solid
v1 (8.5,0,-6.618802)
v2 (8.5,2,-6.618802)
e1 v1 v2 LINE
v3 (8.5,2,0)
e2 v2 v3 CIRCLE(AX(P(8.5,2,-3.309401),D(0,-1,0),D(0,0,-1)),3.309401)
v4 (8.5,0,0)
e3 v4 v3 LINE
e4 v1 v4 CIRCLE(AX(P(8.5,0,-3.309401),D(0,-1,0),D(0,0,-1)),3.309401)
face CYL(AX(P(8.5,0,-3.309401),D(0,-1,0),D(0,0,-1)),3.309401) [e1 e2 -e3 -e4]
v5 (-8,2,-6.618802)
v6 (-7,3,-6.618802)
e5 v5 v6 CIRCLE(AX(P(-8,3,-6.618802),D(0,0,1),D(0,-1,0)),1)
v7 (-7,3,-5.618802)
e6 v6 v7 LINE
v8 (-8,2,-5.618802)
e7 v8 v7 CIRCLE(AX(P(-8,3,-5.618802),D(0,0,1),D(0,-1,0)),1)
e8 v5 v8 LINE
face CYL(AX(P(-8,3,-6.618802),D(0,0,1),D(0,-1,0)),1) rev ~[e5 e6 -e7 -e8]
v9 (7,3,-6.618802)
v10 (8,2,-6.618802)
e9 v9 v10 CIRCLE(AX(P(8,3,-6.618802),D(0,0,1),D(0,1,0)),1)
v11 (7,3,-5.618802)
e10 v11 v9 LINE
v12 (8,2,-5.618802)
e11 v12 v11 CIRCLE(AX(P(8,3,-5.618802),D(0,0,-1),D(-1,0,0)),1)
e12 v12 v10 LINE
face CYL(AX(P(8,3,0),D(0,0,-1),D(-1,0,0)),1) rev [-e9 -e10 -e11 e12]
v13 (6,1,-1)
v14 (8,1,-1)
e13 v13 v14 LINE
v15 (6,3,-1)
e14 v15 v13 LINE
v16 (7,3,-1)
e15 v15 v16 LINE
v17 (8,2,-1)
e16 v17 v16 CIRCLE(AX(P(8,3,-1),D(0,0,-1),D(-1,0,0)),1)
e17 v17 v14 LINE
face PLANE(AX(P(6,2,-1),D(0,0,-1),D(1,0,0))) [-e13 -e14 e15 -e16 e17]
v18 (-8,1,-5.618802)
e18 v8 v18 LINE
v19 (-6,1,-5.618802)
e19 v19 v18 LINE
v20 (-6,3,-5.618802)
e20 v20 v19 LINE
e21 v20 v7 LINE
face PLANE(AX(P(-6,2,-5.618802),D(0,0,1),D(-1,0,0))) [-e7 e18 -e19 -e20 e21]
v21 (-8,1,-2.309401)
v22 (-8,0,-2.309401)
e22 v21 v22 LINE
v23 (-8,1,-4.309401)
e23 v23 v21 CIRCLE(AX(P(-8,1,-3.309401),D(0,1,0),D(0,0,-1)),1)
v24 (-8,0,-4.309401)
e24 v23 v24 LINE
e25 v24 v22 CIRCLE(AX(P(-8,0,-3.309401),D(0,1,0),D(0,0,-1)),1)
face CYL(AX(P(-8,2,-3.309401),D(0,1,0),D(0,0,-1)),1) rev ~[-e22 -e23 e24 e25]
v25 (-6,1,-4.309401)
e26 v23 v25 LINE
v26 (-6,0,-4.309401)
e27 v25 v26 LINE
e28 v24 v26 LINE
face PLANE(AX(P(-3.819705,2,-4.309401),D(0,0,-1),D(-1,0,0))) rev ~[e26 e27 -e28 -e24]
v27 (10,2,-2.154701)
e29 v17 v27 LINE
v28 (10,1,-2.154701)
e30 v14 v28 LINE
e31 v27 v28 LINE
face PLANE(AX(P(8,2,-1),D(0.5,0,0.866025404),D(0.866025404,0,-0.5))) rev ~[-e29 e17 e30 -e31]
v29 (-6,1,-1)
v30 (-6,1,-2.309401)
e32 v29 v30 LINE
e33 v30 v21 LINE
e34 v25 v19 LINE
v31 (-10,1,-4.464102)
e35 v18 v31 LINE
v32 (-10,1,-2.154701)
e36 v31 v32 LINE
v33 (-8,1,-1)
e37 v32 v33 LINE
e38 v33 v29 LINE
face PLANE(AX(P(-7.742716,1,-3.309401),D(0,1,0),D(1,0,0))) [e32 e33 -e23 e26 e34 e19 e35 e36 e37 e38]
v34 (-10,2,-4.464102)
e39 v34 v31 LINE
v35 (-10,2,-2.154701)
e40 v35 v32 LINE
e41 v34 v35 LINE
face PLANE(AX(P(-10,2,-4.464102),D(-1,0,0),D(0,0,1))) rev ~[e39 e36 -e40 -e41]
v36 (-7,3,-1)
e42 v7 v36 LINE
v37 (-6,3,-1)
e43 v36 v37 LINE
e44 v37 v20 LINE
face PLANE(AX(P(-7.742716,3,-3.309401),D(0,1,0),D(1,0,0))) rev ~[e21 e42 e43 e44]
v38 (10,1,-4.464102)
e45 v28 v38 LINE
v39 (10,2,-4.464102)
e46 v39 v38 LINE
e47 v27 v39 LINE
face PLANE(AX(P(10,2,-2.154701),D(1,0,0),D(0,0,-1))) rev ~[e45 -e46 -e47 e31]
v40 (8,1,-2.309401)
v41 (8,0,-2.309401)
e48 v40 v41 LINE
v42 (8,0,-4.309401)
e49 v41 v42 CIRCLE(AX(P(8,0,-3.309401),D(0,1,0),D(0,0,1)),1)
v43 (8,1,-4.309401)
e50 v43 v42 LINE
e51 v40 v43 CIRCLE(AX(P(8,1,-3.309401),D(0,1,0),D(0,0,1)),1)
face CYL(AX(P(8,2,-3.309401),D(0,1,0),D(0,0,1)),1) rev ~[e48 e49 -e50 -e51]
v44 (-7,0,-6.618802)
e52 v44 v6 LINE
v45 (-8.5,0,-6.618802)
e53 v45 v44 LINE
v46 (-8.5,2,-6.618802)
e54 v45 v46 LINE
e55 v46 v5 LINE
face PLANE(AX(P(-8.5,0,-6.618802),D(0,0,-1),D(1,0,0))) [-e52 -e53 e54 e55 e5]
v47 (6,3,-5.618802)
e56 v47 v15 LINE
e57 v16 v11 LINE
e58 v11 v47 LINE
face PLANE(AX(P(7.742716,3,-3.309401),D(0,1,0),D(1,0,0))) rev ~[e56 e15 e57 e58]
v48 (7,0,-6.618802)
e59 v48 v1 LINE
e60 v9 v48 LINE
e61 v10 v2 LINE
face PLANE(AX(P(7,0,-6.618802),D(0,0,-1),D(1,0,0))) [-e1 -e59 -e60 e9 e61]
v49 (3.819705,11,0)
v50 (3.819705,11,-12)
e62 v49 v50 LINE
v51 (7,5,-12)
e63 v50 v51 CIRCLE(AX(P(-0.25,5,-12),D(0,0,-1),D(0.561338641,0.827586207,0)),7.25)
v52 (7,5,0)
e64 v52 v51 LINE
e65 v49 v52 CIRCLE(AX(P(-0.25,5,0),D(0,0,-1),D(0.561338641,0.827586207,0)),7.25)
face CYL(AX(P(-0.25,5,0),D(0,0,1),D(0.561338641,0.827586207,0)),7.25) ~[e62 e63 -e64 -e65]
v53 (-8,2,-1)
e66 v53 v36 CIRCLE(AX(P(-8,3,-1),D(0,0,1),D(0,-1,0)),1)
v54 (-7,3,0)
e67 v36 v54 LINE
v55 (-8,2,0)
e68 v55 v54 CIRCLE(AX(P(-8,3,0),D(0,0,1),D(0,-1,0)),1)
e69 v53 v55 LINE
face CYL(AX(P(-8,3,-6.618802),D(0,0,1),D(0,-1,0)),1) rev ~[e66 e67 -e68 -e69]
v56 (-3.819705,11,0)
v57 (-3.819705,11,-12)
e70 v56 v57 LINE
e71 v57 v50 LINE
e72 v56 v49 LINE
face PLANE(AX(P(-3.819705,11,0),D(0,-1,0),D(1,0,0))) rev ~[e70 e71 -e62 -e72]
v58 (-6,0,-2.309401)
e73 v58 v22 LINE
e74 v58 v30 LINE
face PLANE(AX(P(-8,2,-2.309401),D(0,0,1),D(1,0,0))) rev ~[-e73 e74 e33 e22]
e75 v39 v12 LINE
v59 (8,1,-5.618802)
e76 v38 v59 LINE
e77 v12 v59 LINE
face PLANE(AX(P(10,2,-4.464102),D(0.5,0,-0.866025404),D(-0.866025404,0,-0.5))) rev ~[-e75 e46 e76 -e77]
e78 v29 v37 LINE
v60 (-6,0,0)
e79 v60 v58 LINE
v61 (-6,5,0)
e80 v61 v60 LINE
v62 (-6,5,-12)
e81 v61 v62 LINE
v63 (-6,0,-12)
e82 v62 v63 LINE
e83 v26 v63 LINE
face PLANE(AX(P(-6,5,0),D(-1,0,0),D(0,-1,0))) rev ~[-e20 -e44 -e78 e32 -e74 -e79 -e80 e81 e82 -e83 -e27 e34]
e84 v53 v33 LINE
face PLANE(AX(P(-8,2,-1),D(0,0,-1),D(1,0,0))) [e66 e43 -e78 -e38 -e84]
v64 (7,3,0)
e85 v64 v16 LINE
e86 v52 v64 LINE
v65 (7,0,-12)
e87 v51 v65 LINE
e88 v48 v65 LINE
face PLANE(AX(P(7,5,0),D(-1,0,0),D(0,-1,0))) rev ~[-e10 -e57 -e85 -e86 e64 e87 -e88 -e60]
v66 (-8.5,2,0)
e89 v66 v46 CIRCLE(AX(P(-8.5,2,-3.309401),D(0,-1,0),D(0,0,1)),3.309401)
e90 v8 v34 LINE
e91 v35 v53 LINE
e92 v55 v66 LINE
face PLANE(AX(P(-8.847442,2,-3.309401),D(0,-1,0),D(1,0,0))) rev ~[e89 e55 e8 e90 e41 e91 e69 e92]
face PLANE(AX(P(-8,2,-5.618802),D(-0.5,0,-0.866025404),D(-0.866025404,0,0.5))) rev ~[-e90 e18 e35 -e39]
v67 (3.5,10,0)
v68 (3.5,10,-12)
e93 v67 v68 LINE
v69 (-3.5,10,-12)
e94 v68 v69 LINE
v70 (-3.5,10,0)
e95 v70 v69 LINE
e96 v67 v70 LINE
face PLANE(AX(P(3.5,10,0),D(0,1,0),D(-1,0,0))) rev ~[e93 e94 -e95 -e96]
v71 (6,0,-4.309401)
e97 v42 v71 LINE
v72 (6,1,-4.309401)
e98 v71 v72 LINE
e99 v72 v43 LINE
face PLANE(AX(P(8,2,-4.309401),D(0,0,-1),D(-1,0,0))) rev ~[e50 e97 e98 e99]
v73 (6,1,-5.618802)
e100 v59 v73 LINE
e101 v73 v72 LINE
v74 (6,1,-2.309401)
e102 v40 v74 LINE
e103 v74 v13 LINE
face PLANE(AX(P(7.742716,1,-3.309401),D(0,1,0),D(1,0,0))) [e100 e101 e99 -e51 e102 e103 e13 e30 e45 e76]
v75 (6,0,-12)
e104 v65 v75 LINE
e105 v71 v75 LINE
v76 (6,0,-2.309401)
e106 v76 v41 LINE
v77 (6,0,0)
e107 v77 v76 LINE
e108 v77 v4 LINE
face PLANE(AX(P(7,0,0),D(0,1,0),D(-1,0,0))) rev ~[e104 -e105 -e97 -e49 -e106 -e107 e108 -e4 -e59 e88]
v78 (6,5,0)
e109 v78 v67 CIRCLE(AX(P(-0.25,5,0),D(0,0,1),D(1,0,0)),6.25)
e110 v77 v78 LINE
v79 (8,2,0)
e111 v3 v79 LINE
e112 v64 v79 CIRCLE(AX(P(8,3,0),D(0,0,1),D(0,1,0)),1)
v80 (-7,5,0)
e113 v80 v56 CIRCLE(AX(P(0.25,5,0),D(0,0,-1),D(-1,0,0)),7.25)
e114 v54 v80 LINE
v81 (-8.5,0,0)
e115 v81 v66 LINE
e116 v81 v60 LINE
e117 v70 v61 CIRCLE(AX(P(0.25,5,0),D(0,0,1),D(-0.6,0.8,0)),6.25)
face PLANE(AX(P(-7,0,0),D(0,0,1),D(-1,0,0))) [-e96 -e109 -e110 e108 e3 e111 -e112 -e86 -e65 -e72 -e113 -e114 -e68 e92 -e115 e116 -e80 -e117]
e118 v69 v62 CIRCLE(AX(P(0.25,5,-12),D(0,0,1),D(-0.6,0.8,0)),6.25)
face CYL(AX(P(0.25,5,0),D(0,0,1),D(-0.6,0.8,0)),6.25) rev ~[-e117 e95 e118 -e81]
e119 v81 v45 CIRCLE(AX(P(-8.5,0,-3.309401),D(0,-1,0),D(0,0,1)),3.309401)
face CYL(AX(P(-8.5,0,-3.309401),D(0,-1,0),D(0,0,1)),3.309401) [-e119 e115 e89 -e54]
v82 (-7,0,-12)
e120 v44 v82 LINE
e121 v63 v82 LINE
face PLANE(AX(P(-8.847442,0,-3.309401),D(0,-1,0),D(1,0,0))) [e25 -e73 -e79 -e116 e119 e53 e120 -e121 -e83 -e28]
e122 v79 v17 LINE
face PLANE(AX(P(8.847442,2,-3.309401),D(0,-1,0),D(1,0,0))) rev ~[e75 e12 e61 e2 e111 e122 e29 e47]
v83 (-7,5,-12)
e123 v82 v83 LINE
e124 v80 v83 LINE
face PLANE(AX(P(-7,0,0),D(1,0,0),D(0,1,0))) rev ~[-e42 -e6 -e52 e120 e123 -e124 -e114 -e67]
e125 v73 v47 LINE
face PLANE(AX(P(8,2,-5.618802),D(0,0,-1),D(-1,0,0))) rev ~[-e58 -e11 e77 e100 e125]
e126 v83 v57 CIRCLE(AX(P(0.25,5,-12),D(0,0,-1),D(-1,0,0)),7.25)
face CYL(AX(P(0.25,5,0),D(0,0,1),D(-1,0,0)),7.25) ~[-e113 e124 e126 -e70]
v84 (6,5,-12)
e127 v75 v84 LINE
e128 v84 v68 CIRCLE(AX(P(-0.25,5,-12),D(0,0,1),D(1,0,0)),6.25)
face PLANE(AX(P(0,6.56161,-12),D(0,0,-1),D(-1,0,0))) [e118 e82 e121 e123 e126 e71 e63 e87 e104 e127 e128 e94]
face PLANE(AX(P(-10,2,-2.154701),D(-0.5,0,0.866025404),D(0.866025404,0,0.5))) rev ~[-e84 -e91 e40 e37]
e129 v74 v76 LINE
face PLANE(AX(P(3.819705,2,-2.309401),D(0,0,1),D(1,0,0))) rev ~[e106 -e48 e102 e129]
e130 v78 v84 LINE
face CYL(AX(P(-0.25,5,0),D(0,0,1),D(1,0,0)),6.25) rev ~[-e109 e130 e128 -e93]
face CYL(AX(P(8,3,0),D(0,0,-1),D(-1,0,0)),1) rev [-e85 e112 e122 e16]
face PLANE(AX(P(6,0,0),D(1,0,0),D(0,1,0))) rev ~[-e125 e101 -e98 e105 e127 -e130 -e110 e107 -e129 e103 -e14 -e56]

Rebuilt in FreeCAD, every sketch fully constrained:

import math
import FreeCAD as App
import Part
import Sketcher

V = App.Vector
Q = App.Units.Quantity


def edges_at(feature, points):
    """Names of the edges that pass closest to the given points."""
    edges = feature.Shape.Edges
    near = lambda p: min(range(len(edges)), key=lambda i: edges[i].distToShape(Part.Vertex(*p))[0])
    return sorted({f"Edge{near(p) + 1}" for p in points})

doc = App.newDocument("Part")
body = doc.addObject("PartDesign::Body", "Body")

sketch1 = body.newObject("Sketcher::SketchObject", "Sketch")
sketch1.AttachmentSupport = (doc.getObject("XY_Plane"), [""])
sketch1.MapMode = "FlatFace"
sketch1.addGeometry(Part.LineSegment(V(-3.5, 10, 0), V(3.5, 10, 0)), False)
sketch1.addGeometry(Part.ArcOfCircle(Part.Circle(V(-0.2, 5, 0), V(0, 0, 1), 6.2), math.radians(0), math.radians(53)), False)
sketch1.addGeometry(Part.LineSegment(V(6, 5, 0), V(6, 0, 0)), False)
sketch1.addGeometry(Part.LineSegment(V(6, 0, 0), V(7, 0, 0)), False)
sketch1.addGeometry(Part.LineSegment(V(7, 0, 0), V(7, 5, 0)), False)
sketch1.addGeometry(Part.ArcOfCircle(Part.Circle(V(-0.3, 5, 0), V(0, 0, 1), 7.3), math.radians(0), math.radians(56)), False)
sketch1.addGeometry(Part.LineSegment(V(3.8, 11, 0), V(-3.8, 11, 0)), False)
sketch1.addGeometry(Part.ArcOfCircle(Part.Circle(V(0.3, 5, 0), V(0, 0, 1), 7.3), math.radians(124), math.radians(180)), False)
sketch1.addGeometry(Part.LineSegment(V(-7, 5, 0), V(-7, 0, 0)), False)
sketch1.addGeometry(Part.LineSegment(V(-7, 0, 0), V(-6, 0, 0)), False)
sketch1.addGeometry(Part.LineSegment(V(-6, 0, 0), V(-6, 5, 0)), False)
sketch1.addGeometry(Part.ArcOfCircle(Part.Circle(V(0.2, 5, 0), V(0, 0, 1), 6.2), math.radians(127), math.radians(180)), False)
sketch1.addConstraint(Sketcher.Constraint("Coincident", 0, 2, 1, 2))
sketch1.addConstraint(Sketcher.Constraint("Tangent", 1, 1, 2, 1))
sketch1.addConstraint(Sketcher.Constraint("Coincident", 2, 2, 3, 1))
sketch1.addConstraint(Sketcher.Constraint("Coincident", 3, 2, 4, 1))
sketch1.addConstraint(Sketcher.Constraint("Tangent", 4, 2, 5, 1))
sketch1.addConstraint(Sketcher.Constraint("Coincident", 5, 2, 6, 1))
sketch1.addConstraint(Sketcher.Constraint("Coincident", 6, 2, 7, 1))
sketch1.addConstraint(Sketcher.Constraint("Tangent", 7, 2, 8, 1))
sketch1.addConstraint(Sketcher.Constraint("Coincident", 8, 2, 9, 1))
sketch1.addConstraint(Sketcher.Constraint("Coincident", 9, 2, 10, 1))
sketch1.addConstraint(Sketcher.Constraint("Tangent", 10, 2, 11, 2))
sketch1.addConstraint(Sketcher.Constraint("Coincident", 11, 1, 0, 1))
sketch1.addConstraint(Sketcher.Constraint("Horizontal", 0))
sketch1.addConstraint(Sketcher.Constraint("Vertical", 2))
sketch1.addConstraint(Sketcher.Constraint("Horizontal", 3))
sketch1.addConstraint(Sketcher.Constraint("Vertical", 4))
sketch1.addConstraint(Sketcher.Constraint("Horizontal", 6))
sketch1.addConstraint(Sketcher.Constraint("Vertical", 8))
sketch1.addConstraint(Sketcher.Constraint("Horizontal", 9))
sketch1.addConstraint(Sketcher.Constraint("Vertical", 10))
sketch1.addConstraint(Sketcher.Constraint("Coincident", 5, 3, 1, 3))
sketch1.addConstraint(Sketcher.Constraint("Coincident", 11, 3, 7, 3))
sketch1.addConstraint(Sketcher.Constraint("Equal", 5, 7))
sketch1.addConstraint(Sketcher.Constraint("Equal", 1, 11))
sketch1.addConstraint(Sketcher.Constraint("Symmetric", 3, 2, 8, 2, -1, 1))
sketch1.addConstraint(Sketcher.Constraint("PointOnObject", 2, 2, -1))
sketch1.addConstraint(Sketcher.Constraint("Horizontal", 5, 3, 7, 3))
sketch1.addConstraint(Sketcher.Constraint("DistanceX", 0, 1, 0, 2, Q("7 mm")))
sketch1.addConstraint(Sketcher.Constraint("DistanceX", 3, 1, 3, 2, Q("1 mm")))
sketch1.addConstraint(Sketcher.Constraint("DistanceY", 2, 2, 2, 1, Q("5 mm")))
sketch1.addConstraint(Sketcher.Constraint("Radius", 1, Q("6.25 mm")))
sketch1.addConstraint(Sketcher.Constraint("DistanceY", -1, 1, 0, 2, Q("10 mm")))
sketch1.addConstraint(Sketcher.Constraint("DistanceY", -1, 1, 5, 2, Q("11 mm")))
pad1 = body.newObject("PartDesign::Pad", "Pad")
pad1.Profile = sketch1
pad1.Length = 12
pad1.Reversed = True

sketch2 = body.newObject("Sketcher::SketchObject", "Sketch001")
sketch2.AttachmentSupport = (doc.getObject("XZ_Plane"), [""])
sketch2.MapMode = "FlatFace"
sketch2.addGeometry(Part.LineSegment(V(-7, 0, 0), V(-8.5, 0, 0)), False)
sketch2.addGeometry(Part.ArcOfCircle(Part.Circle(V(-8.5, -3.3, 0), V(0, 0, 1), 3.3), math.radians(90), math.radians(270)), False)
sketch2.addGeometry(Part.LineSegment(V(-8.5, -6.6, 0), V(-7, -6.6, 0)), False)
sketch2.addGeometry(Part.LineSegment(V(-7, -6.6, 0), V(-7, 0, 0)), False)
sketch2.addGeometry(Part.ArcOfCircle(Part.Circle(V(8.5, -3.3, 0), V(0, 0, 1), 3.3), math.radians(-90), math.radians(90)), False)
sketch2.addGeometry(Part.LineSegment(V(8.5, 0, 0), V(7, 0, 0)), False)
sketch2.addGeometry(Part.LineSegment(V(7, 0, 0), V(7, -6.6, 0)), False)
sketch2.addGeometry(Part.LineSegment(V(7, -6.6, 0), V(8.5, -6.6, 0)), False)
sketch2.addConstraint(Sketcher.Constraint("Tangent", 0, 2, 1, 1))
sketch2.addConstraint(Sketcher.Constraint("Tangent", 1, 2, 2, 1))
sketch2.addConstraint(Sketcher.Constraint("Coincident", 2, 2, 3, 1))
sketch2.addConstraint(Sketcher.Constraint("Coincident", 3, 2, 0, 1))
sketch2.addConstraint(Sketcher.Constraint("Tangent", 4, 2, 5, 1))
sketch2.addConstraint(Sketcher.Constraint("Coincident", 5, 2, 6, 1))
sketch2.addConstraint(Sketcher.Constraint("Coincident", 6, 2, 7, 1))
sketch2.addConstraint(Sketcher.Constraint("Tangent", 7, 2, 4, 1))
sketch2.addConstraint(Sketcher.Constraint("Horizontal", 0))
sketch2.addConstraint(Sketcher.Constraint("Horizontal", 2))
sketch2.addConstraint(Sketcher.Constraint("Vertical", 3))
sketch2.addConstraint(Sketcher.Constraint("Horizontal", 5))
sketch2.addConstraint(Sketcher.Constraint("Vertical", 6))
sketch2.addConstraint(Sketcher.Constraint("Horizontal", 7))
sketch2.addConstraint(Sketcher.Constraint("Equal", 1, 4))
sketch2.addConstraint(Sketcher.Constraint("Symmetric", 0, 2, 4, 2, -1, 1))
sketch2.addConstraint(Sketcher.Constraint("Symmetric", 3, 2, 5, 2, -2))
sketch2.addConstraint(Sketcher.Constraint("DistanceX", 0, 2, 0, 1, Q("1.5 mm")))
sketch2.addConstraint(Sketcher.Constraint("DistanceX", 2, 2, -1, 1, Q("7 mm")))
sketch2.addConstraint(Sketcher.Constraint("Radius", 1, Q("3.309401 mm")))
pad2 = body.newObject("PartDesign::Pad", "Pad001")
pad2.Profile = sketch2
pad2.Length = 2
pad2.Reversed = True
doc.recompute()

fillet = body.newObject("PartDesign::Fillet", "Fillet")
fillet.Base = (pad2, edges_at(pad2, [(-7, 2, -3.309), (7, 2, -3.309)]))
fillet.Radius = 1

sketch3 = body.newObject("Sketcher::SketchObject", "Sketch002")
sketch3.AttachmentSupport = (doc.getObject("XZ_Plane"), [""])
sketch3.MapMode = "FlatFace"
sketch3.AttachmentOffset = App.Placement(V(0, 0, -2), App.Rotation())
sketch3.addGeometry(Part.ArcOfCircle(Part.Circle(V(-8, -3.3, 0), V(0, 0, 1), 1), math.radians(90), math.radians(270)), False)
sketch3.addGeometry(Part.LineSegment(V(-8, -2.3, 0), V(-3.8, -2.3, 0)), False)
sketch3.addGeometry(Part.LineSegment(V(-3.8, -2.3, 0), V(-3.8, -4.3, 0)), False)
sketch3.addGeometry(Part.LineSegment(V(-3.8, -4.3, 0), V(-8, -4.3, 0)), False)
sketch3.addGeometry(Part.LineSegment(V(3.8, -2.3, 0), V(8, -2.3, 0)), False)
sketch3.addGeometry(Part.ArcOfCircle(Part.Circle(V(8, -3.3, 0), V(0, 0, 1), 1), math.radians(-90), math.radians(90)), False)
sketch3.addGeometry(Part.LineSegment(V(8, -4.3, 0), V(3.8, -4.3, 0)), False)
sketch3.addGeometry(Part.LineSegment(V(3.8, -4.3, 0), V(3.8, -2.3, 0)), False)
sketch3.addConstraint(Sketcher.Constraint("Tangent", 0, 1, 1, 1))
sketch3.addConstraint(Sketcher.Constraint("Coincident", 1, 2, 2, 1))
sketch3.addConstraint(Sketcher.Constraint("Coincident", 2, 2, 3, 1))
sketch3.addConstraint(Sketcher.Constraint("Tangent", 3, 2, 0, 2))
sketch3.addConstraint(Sketcher.Constraint("Tangent", 4, 2, 5, 2))
sketch3.addConstraint(Sketcher.Constraint("Tangent", 5, 1, 6, 1))
sketch3.addConstraint(Sketcher.Constraint("Coincident", 6, 2, 7, 1))
sketch3.addConstraint(Sketcher.Constraint("Coincident", 7, 2, 4, 1))
sketch3.addConstraint(Sketcher.Constraint("Horizontal", 1))
sketch3.addConstraint(Sketcher.Constraint("Vertical", 2))
sketch3.addConstraint(Sketcher.Constraint("Horizontal", 3))
sketch3.addConstraint(Sketcher.Constraint("Horizontal", 4))
sketch3.addConstraint(Sketcher.Constraint("Horizontal", 6))
sketch3.addConstraint(Sketcher.Constraint("Vertical", 7))
sketch3.addConstraint(Sketcher.Constraint("Equal", 0, 5))
sketch3.addConstraint(Sketcher.Constraint("Symmetric", 0, 3, 5, 3, -2))
sketch3.addConstraint(Sketcher.Constraint("Equal", 3, 4))
sketch3.addConstraint(Sketcher.Constraint("Radius", 0, Q("1 mm")))
sketch3.addConstraint(Sketcher.Constraint("DistanceX", 0, 3, -1, 1, Q("8 mm")))
sketch3.addConstraint(Sketcher.Constraint("DistanceY", 0, 3, -1, 1, Q("3.309401 mm")))
sketch3.addConstraint(Sketcher.Constraint("DistanceX", 1, 1, 1, 2, Q("4.180295 mm")))
pocket1 = body.newObject("PartDesign::Pocket", "Pocket")
pocket1.Profile = sketch3
pocket1.Length = 3
pocket1.Reversed = True

sketch4 = body.newObject("Sketcher::SketchObject", "Sketch003")
sketch4.AttachmentSupport = (doc.getObject("XZ_Plane"), [""])
sketch4.MapMode = "FlatFace"
sketch4.AttachmentOffset = App.Placement(V(0, 0, -2), App.Rotation())
sketch4.addGeometry(Part.LineSegment(V(-8, -5.6, 0), V(-10, -4.5, 0)), False)
sketch4.addGeometry(Part.LineSegment(V(-10, -4.5, 0), V(-10, -2.2, 0)), False)
sketch4.addGeometry(Part.LineSegment(V(-10, -2.2, 0), V(-8, -1, 0)), False)
sketch4.addGeometry(Part.LineSegment(V(-8, -1, 0), V(-6, -1, 0)), False)
sketch4.addGeometry(Part.LineSegment(V(-6, -1, 0), V(-6, -5.6, 0)), False)
sketch4.addGeometry(Part.LineSegment(V(-6, -5.6, 0), V(-8, -5.6, 0)), False)
sketch4.addGeometry(Part.LineSegment(V(6, -1, 0), V(8, -1, 0)), False)
sketch4.addGeometry(Part.LineSegment(V(8, -1, 0), V(10, -2.2, 0)), False)
sketch4.addGeometry(Part.LineSegment(V(10, -2.2, 0), V(10, -4.5, 0)), False)
sketch4.addGeometry(Part.LineSegment(V(10, -4.5, 0), V(8, -5.6, 0)), False)
sketch4.addGeometry(Part.LineSegment(V(8, -5.6, 0), V(6, -5.6, 0)), False)
sketch4.addGeometry(Part.LineSegment(V(6, -5.6, 0), V(6, -1, 0)), False)
sketch4.addConstraint(Sketcher.Constraint("Coincident", 0, 2, 1, 1))
sketch4.addConstraint(Sketcher.Constraint("Coincident", 1, 2, 2, 1))
sketch4.addConstraint(Sketcher.Constraint("Coincident", 2, 2, 3, 1))
sketch4.addConstraint(Sketcher.Constraint("Coincident", 3, 2, 4, 1))
sketch4.addConstraint(Sketcher.Constraint("Coincident", 4, 2, 5, 1))
sketch4.addConstraint(Sketcher.Constraint("Coincident", 5, 2, 0, 1))
sketch4.addConstraint(Sketcher.Constraint("Coincident", 6, 2, 7, 1))
sketch4.addConstraint(Sketcher.Constraint("Coincident", 7, 2, 8, 1))
sketch4.addConstraint(Sketcher.Constraint("Coincident", 8, 2, 9, 1))
sketch4.addConstraint(Sketcher.Constraint("Coincident", 9, 2, 10, 1))
sketch4.addConstraint(Sketcher.Constraint("Coincident", 10, 2, 11, 1))
sketch4.addConstraint(Sketcher.Constraint("Coincident", 11, 2, 6, 1))
sketch4.addConstraint(Sketcher.Constraint("Vertical", 1))
sketch4.addConstraint(Sketcher.Constraint("Horizontal", 3))
sketch4.addConstraint(Sketcher.Constraint("Vertical", 4))
sketch4.addConstraint(Sketcher.Constraint("Horizontal", 5))
sketch4.addConstraint(Sketcher.Constraint("Horizontal", 6))
sketch4.addConstraint(Sketcher.Constraint("Vertical", 8))
sketch4.addConstraint(Sketcher.Constraint("Horizontal", 10))
sketch4.addConstraint(Sketcher.Constraint("Vertical", 11))
sketch4.addConstraint(Sketcher.Constraint("Symmetric", 2, 2, 6, 2, -2))
sketch4.addConstraint(Sketcher.Constraint("Symmetric", 1, 2, 7, 2, -2))
sketch4.addConstraint(Sketcher.Constraint("Symmetric", 5, 2, 9, 2, -2))
sketch4.addConstraint(Sketcher.Constraint("Parallel", 0, 7))
sketch4.addConstraint(Sketcher.Constraint("Parallel", 2, 9))
sketch4.addConstraint(Sketcher.Constraint("Vertical", 2, 2, 5, 2))
sketch4.addConstraint(Sketcher.Constraint("Equal", 5, 6))
sketch4.addConstraint(Sketcher.Constraint("DistanceX", 3, 1, 3, 2, Q("2 mm")))
sketch4.addConstraint(Sketcher.Constraint("Angle", 0, Q("150 deg")))
sketch4.addConstraint(Sketcher.Constraint("DistanceX", 0, 2, -1, 1, Q("10 mm")))
sketch4.addConstraint(Sketcher.Constraint("DistanceX", 2, 2, -1, 1, Q("8 mm")))
sketch4.addConstraint(Sketcher.Constraint("DistanceY", 2, 2, -1, 1, Q("1 mm")))
sketch4.addConstraint(Sketcher.Constraint("DistanceY", 1, 1, 1, 2, Q("2.309401 mm")))
pocket2 = body.newObject("PartDesign::Pocket", "Pocket001")
pocket2.Profile = sketch4
pocket2.Type = "TwoLengths"
pocket2.Length = 1
pocket2.Length2 = 1

doc.recompute()
